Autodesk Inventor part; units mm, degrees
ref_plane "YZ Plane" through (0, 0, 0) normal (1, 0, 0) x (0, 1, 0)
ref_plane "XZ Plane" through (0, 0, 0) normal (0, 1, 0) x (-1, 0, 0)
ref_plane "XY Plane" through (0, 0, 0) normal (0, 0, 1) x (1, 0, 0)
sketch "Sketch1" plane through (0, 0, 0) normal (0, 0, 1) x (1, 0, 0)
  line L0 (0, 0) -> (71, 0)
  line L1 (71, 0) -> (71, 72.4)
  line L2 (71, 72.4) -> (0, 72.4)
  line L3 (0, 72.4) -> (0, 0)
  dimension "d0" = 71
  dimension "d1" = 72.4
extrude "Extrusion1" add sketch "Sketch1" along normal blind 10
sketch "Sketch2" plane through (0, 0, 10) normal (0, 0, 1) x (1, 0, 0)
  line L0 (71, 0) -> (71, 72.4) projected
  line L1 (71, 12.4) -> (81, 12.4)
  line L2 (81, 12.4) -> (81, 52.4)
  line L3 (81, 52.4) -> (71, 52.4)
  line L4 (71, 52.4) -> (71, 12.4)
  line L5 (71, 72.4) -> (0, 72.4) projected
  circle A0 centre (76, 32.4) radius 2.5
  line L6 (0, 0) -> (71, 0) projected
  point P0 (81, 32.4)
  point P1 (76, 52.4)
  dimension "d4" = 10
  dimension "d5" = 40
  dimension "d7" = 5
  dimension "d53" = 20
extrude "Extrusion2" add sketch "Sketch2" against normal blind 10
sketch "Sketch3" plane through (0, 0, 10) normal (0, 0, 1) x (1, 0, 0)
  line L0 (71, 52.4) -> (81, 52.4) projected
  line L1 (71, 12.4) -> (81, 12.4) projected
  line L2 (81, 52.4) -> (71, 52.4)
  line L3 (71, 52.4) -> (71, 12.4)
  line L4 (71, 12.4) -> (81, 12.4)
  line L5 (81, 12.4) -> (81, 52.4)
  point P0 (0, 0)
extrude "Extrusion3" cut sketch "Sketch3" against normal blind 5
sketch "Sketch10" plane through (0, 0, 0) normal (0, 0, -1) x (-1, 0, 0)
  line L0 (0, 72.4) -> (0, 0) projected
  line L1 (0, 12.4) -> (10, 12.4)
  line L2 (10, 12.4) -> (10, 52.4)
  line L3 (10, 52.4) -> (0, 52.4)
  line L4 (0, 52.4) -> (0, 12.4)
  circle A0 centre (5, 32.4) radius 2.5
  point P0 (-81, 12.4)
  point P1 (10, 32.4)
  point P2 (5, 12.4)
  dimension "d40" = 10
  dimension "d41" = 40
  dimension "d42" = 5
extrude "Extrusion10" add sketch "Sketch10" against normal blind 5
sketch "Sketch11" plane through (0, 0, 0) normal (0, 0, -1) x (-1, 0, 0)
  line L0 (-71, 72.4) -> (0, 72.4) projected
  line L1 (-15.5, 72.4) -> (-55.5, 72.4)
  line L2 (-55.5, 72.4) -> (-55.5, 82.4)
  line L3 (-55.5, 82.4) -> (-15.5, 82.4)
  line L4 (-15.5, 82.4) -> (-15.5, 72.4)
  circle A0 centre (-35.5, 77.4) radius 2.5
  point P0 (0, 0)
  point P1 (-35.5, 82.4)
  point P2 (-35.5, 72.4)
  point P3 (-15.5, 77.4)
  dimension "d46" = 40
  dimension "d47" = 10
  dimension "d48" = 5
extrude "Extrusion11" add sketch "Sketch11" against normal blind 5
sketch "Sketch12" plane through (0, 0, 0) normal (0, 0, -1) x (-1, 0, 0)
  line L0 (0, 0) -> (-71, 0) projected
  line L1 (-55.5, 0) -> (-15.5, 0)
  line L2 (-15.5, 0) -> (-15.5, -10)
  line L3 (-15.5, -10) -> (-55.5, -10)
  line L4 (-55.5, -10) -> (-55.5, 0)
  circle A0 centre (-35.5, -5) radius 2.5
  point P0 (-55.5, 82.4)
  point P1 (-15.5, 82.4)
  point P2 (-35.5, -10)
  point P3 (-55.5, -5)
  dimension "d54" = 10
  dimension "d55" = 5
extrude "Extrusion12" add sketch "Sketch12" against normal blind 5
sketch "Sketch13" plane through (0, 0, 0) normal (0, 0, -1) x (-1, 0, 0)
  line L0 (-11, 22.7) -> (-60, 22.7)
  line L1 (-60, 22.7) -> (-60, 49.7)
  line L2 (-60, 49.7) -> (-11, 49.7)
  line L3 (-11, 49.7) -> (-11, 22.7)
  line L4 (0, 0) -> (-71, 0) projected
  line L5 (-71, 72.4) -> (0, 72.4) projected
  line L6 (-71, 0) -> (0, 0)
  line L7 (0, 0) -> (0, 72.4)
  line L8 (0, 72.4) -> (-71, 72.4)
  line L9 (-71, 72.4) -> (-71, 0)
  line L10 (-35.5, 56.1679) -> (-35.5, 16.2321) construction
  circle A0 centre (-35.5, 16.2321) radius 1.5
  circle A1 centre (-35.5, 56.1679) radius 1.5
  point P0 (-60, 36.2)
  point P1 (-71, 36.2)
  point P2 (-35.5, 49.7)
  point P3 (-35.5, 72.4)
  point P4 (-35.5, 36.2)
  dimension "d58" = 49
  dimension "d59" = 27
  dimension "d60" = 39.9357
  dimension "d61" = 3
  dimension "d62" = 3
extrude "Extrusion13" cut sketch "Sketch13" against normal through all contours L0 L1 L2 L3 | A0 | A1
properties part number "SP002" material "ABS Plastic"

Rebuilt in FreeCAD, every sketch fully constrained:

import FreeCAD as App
import Part
import Sketcher


def add_polygon(sketch, points):
    """Adds a closed chain of lines whose ends are joined by coincident constraints."""
    first, n = sketch.GeometryCount, len(points)
    for a, b in zip(points, points[1:] + points[:1]):
        sketch.addGeometry(Part.LineSegment(App.Vector(*a, 0), App.Vector(*b, 0)), False)
    for i in range(n):
        sketch.addConstraint(Sketcher.Constraint("Coincident", first + i, 2, first + (i + 1) % n, 1))

doc = App.newDocument("Part")
body = doc.addObject("PartDesign::Body", "Body")

# Sketch on XY plane
sketch1 = body.newObject("Sketcher::SketchObject", "Sketch")
sketch1.AttachmentSupport = (doc.getObject("XY_Plane"), [""])
sketch1.MapMode = "FlatFace"
add_polygon(sketch1, [(0, 72), (0, 0), (71, 0), (71, 72)])  # lines 0-3
sketch1.addConstraint([
    Sketcher.Constraint("Vertical", 0),
    Sketcher.Constraint("Horizontal", 1),
    Sketcher.Constraint("Vertical", 2),
    Sketcher.Constraint("Horizontal", 3),
    Sketcher.Constraint("Coincident", 0, 2, -1, 1),
    Sketcher.Constraint("DistanceX", 1, 1, 1, 2, 71.0),
    Sketcher.Constraint("DistanceY", 0, 2, 0, 1, 72.4),
])
pad1 = body.newObject("PartDesign::Pad", "Pad")
pad1.Profile = sketch1
pad1.Length = 10

# Sketch on XY plane
sketch2 = body.newObject("Sketcher::SketchObject", "Sketch001")
sketch2.AttachmentSupport = (doc.getObject("XY_Plane"), [""])
sketch2.MapMode = "FlatFace"
sketch2.AttachmentOffset = App.Placement(App.Vector(0, 0, 10), App.Rotation())
add_polygon(sketch2, [(71, 52.4), (71, 12.4), (81, 12.4), (81, 52.4)])  # lines 0-3
sketch2.addGeometry(Part.Circle(App.Vector(76, 32.4, 0), App.Vector(0, 0, 1), 2.5), False)  # 4
sketch2.addConstraint([
    Sketcher.Constraint("Vertical", 0),
    Sketcher.Constraint("Horizontal", 1),
    Sketcher.Constraint("Vertical", 2),
    Sketcher.Constraint("Horizontal", 3),
    Sketcher.Constraint("Diameter", 4, 5.0),
    Sketcher.Constraint("DistanceX", 1, 1, 1, 2, 10.0),
    Sketcher.Constraint("DistanceY", 0, 2, 0, 1, 40.0),
    Sketcher.Constraint("DistanceX", 0, 2, 4, 3, 5.0),
    Sketcher.Constraint("DistanceY", 0, 2, 4, 3, 20.0),
    Sketcher.Constraint("DistanceX", -1, 1, 4, 3, 76.0),
    Sketcher.Constraint("DistanceY", -1, 1, 4, 3, 32.4),
])
pad2 = body.newObject("PartDesign::Pad", "Pad001")
pad2.Profile = sketch2
pad2.Length = 10
pad2.Reversed = True

# Sketch on XY plane
sketch3 = body.newObject("Sketcher::SketchObject", "Sketch002")
sketch3.AttachmentSupport = (doc.getObject("XY_Plane"), [""])
sketch3.MapMode = "FlatFace"
sketch3.AttachmentOffset = App.Placement(App.Vector(0, 0, 10), App.Rotation())
add_polygon(sketch3, [(81, 52), (71, 52), (71, 12), (81, 12)])  # lines 0-3
sketch3.addConstraint([
    Sketcher.Constraint("Horizontal", 0),
    Sketcher.Constraint("Vertical", 1),
    Sketcher.Constraint("Horizontal", 2),
    Sketcher.Constraint("Vertical", 3),
    Sketcher.Constraint("DistanceX", 0, 2, 0, 1, 10.0),
    Sketcher.Constraint("DistanceY", 1, 2, 1, 1, 40.0),
    Sketcher.Constraint("DistanceX", -1, 1, 0, 2, 71.0),
    Sketcher.Constraint("DistanceY", -1, 1, 0, 2, 52.4),
])
pocket1 = body.newObject("PartDesign::Pocket", "Pocket")
pocket1.Profile = sketch3
pocket1.Length = 5

# Sketch on XY plane
sketch4 = body.newObject("Sketcher::SketchObject", "Sketch003")
sketch4.AttachmentSupport = (doc.getObject("XY_Plane"), [""])
sketch4.MapMode = "FlatFace"
add_polygon(sketch4, [(-10, 52.4), (0, 52.4), (0, 12.4), (-10, 12.4)])  # lines 0-3
sketch4.addGeometry(Part.Circle(App.Vector(-5, 32.4, 0), App.Vector(0, 0, 1), 2.5), False)  # 4
sketch4.addConstraint([
    Sketcher.Constraint("Horizontal", 0),
    Sketcher.Constraint("Vertical", 1),
    Sketcher.Constraint("Horizontal", 2),
    Sketcher.Constraint("Vertical", 3),
    Sketcher.Constraint("PointOnObject", 0, 2, -2),
    Sketcher.Constraint("Diameter", 4, 5.0),
    Sketcher.Constraint("DistanceX", 0, 1, 0, 2, 10.0),
    Sketcher.Constraint("DistanceY", 1, 2, 1, 1, 40.0),
    Sketcher.Constraint("DistanceX", 4, 3, -1, 1, 5.0),
    Sketcher.Constraint("DistanceY", 4, 3, 0, 2, 20.0),
    Sketcher.Constraint("DistanceY", -1, 1, 4, 3, 32.4),
])
pad3 = body.newObject("PartDesign::Pad", "Pad002")
pad3.Profile = sketch4
pad3.Length = 5

# Sketch on XY plane
sketch5 = body.newObject("Sketcher::SketchObject", "Sketch004")
sketch5.AttachmentSupport = (doc.getObject("XY_Plane"), [""])
sketch5.MapMode = "FlatFace"
add_polygon(sketch5, [(55.5, 82.4), (55.5, 72.4), (15.5, 72.4), (15.5, 82.4)])  # lines 0-3
sketch5.addGeometry(Part.Circle(App.Vector(35.5, 77.4, 0), App.Vector(0, 0, 1), 2.5), False)  # 4
sketch5.addConstraint([
    Sketcher.Constraint("Vertical", 0),
    Sketcher.Constraint("Horizontal", 1),
    Sketcher.Constraint("Vertical", 2),
    Sketcher.Constraint("Horizontal", 3),
    Sketcher.Constraint("Diameter", 4, 5.0),
    Sketcher.Constraint("DistanceX", 1, 2, 1, 1, 40.0),
    Sketcher.Constraint("DistanceY", 0, 2, 0, 1, 10.0),
    Sketcher.Constraint("DistanceY", 0, 2, 4, 3, 5.0),
    Sketcher.Constraint("DistanceX", 4, 3, 0, 2, 20.0),
    Sketcher.Constraint("DistanceX", -1, 1, 4, 3, 35.5),
    Sketcher.Constraint("DistanceY", -1, 1, 4, 3, 77.4),
])
pad4 = body.newObject("PartDesign::Pad", "Pad003")
pad4.Profile = sketch5
pad4.Length = 5

# Sketch on XY plane
sketch6 = body.newObject("Sketcher::SketchObject", "Sketch005")
sketch6.AttachmentSupport = (doc.getObject("XY_Plane"), [""])
sketch6.MapMode = "FlatFace"
add_polygon(sketch6, [(15.5, -10), (15.5, 0), (55.5, 0), (55.5, -10)])  # lines 0-3
sketch6.addGeometry(Part.Circle(App.Vector(35.5, -5, 0), App.Vector(0, 0, 1), 2.5), False)  # 4
sketch6.addConstraint([
    Sketcher.Constraint("Vertical", 0),
    Sketcher.Constraint("Horizontal", 1),
    Sketcher.Constraint("Vertical", 2),
    Sketcher.Constraint("Horizontal", 3),
    Sketcher.Constraint("PointOnObject", 0, 2, -1),
    Sketcher.Constraint("Diameter", 4, 5.0),
    Sketcher.Constraint("DistanceY", 0, 1, 0, 2, 10.0),
    Sketcher.Constraint("DistanceY", 4, 3, -1, 1, 5.0),
    Sketcher.Constraint("DistanceX", 1, 1, 1, 2, 40.0),
    Sketcher.Constraint("DistanceX", 0, 2, 4, 3, 20.0),
    Sketcher.Constraint("DistanceX", -1, 1, 4, 3, 35.5),
])
pad5 = body.newObject("PartDesign::Pad", "Pad004")
pad5.Profile = sketch6
pad5.Length = 5

# Sketch on XY plane
sketch7 = body.newObject("Sketcher::SketchObject", "Sketch006")
sketch7.AttachmentSupport = (doc.getObject("XY_Plane"), [""])
sketch7.MapMode = "FlatFace"
add_polygon(sketch7, [(60, 22.7), (11, 22.7), (11, 49.7), (60, 49.7)])  # lines 0-3
sketch7.addGeometry(Part.Circle(App.Vector(35.5, 16.2, 0), App.Vector(0, 0, 1), 1.5), False)  # 4
sketch7.addGeometry(Part.Circle(App.Vector(35.5, 56.2, 0), App.Vector(0, 0, 1), 1.5), False)  # 5
sketch7.addConstraint([
    Sketcher.Constraint("Horizontal", 0),
    Sketcher.Constraint("Vertical", 1),
    Sketcher.Constraint("Horizontal", 2),
    Sketcher.Constraint("Vertical", 3),
    Sketcher.Constraint("Equal", 4, 5),
    Sketcher.Constraint("Vertical", 4, 3, 5, 3),
    Sketcher.Constraint("Diameter", 4, 3.0),
    Sketcher.Constraint("DistanceX", 0, 2, 0, 1, 49.0),
    Sketcher.Constraint("DistanceY", 1, 1, 1, 2, 27.0),
    Sketcher.Constraint("DistanceX", -1, 1, 0, 2, 11.0),
    Sketcher.Constraint("DistanceX", -1, 1, 4, 3, 35.5),
    Sketcher.Constraint("DistanceY", -1, 1, 0, 2, 22.7),
    Sketcher.Constraint("DistanceY", 4, 3, 5, 3, 39.9358),
    Sketcher.Constraint("DistanceY", -1, 1, 4, 3, 16.232),
])
pocket2 = body.newObject("PartDesign::Pocket", "Pocket001")
pocket2.Profile = sketch7
pocket2.Type = "ThroughAll"
pocket2.Reversed = True

doc.recompute()
